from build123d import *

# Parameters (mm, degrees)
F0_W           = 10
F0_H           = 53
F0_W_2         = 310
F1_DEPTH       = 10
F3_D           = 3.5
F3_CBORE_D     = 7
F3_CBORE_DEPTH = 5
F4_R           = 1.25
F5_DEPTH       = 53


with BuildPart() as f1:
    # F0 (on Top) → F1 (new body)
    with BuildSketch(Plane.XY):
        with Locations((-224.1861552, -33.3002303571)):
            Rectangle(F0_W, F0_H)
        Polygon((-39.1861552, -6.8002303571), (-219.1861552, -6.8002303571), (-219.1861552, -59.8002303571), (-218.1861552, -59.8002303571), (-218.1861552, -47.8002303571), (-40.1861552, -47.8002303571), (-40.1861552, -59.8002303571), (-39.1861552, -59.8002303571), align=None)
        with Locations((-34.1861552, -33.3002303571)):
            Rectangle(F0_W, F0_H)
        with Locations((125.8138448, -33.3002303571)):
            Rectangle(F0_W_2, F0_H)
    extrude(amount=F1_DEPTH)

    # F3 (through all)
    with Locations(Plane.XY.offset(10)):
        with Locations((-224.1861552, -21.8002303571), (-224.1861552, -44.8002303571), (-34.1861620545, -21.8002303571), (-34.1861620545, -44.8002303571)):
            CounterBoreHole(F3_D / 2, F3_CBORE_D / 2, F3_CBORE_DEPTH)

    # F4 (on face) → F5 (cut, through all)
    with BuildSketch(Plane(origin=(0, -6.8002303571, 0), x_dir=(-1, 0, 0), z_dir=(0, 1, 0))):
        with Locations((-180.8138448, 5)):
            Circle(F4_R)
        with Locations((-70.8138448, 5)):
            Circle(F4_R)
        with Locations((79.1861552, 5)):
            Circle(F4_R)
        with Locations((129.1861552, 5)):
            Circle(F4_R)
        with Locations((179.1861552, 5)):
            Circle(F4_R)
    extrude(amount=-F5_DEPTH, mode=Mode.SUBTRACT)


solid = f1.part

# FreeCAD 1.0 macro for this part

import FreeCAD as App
import Part
import Sketcher
from FreeCAD import Vector

doc = App.newDocument("Part")
body = doc.addObject("PartDesign::Body", "Body")

# Sketch on XY plane
sketch1 = doc.addObject("Sketcher::SketchObject", "Sketch")
body.addObject(sketch1)
sketch1.AttachmentSupport = (doc.XY_Plane, [""])
sketch1.MapMode = "FlatFace"
sketch1.addGeometry([
    Part.LineSegment(Vector(-229, -7, 0), Vector(-229, -60, 0)),  # 0
    Part.LineSegment(Vector(-229, -60, 0), Vector(-218, -60, 0)),  # 1
    Part.LineSegment(Vector(-218, -60, 0), Vector(-218, -48, 0)),  # 2
    Part.LineSegment(Vector(-218, -48, 0), Vector(-40, -48, 0)),  # 3
    Part.LineSegment(Vector(-40, -48, 0), Vector(-40, -60, 0)),  # 4
    Part.LineSegment(Vector(-40, -60, 0), Vector(281, -60, 0)),  # 5
    Part.LineSegment(Vector(281, -60, 0), Vector(281, -7, 0)),  # 6
    Part.LineSegment(Vector(281, -7, 0), Vector(-229, -7, 0)),  # 7
], False)
sketch1.addConstraint([
    Sketcher.Constraint("Coincident", 0, 2, 1, 1),
    Sketcher.Constraint("Coincident", 1, 2, 2, 1),
    Sketcher.Constraint("Coincident", 2, 2, 3, 1),
    Sketcher.Constraint("Coincident", 3, 2, 4, 1),
    Sketcher.Constraint("Coincident", 4, 2, 5, 1),
    Sketcher.Constraint("Coincident", 5, 2, 6, 1),
    Sketcher.Constraint("Coincident", 6, 2, 7, 1),
    Sketcher.Constraint("Coincident", 7, 2, 0, 1),
    Sketcher.Constraint("Vertical", 0),
    Sketcher.Constraint("Horizontal", 1),
    Sketcher.Constraint("Vertical", 2),
    Sketcher.Constraint("Horizontal", 3),
    Sketcher.Constraint("Vertical", 4),
    Sketcher.Constraint("Horizontal", 5),
    Sketcher.Constraint("Vertical", 6),
    Sketcher.Constraint("Horizontal", 7),
    Sketcher.Constraint("Horizontal", 1, 2, 4, 2),
    Sketcher.Constraint("DistanceX", 1, 1, 1, 2, 11.0),
    Sketcher.Constraint("DistanceX", 3, 1, 3, 2, 178.0),
    Sketcher.Constraint("DistanceX", 5, 1, 5, 2, 321.0),
    Sketcher.Constraint("DistanceY", 0, 2, 0, 1, 53.0),
    Sketcher.Constraint("DistanceY", 2, 1, 2, 2, 12.0),
    Sketcher.Constraint("DistanceY", 0, 2, -1, 1, 59.80023),
    Sketcher.Constraint("DistanceX", 0, 2, -1, 1, 229.186155),
])
pad1 = doc.addObject("PartDesign::Pad", "Pad")
body.addObject(pad1)
pad1.Profile = sketch1
pad1.Length = 10

# Sketch on XY plane
sketch2 = doc.addObject("Sketcher::SketchObject", "Sketch001")
body.addObject(sketch2)
sketch2.AttachmentSupport = (doc.XY_Plane, [""])
sketch2.MapMode = "FlatFace"
sketch2.AttachmentOffset = App.Placement(Vector(0, 0, 10), App.Rotation())
sketch2.addGeometry([
    Part.Circle(Vector(-224.2, -21.8, 0), Vector(0, 0, 1), 1.8),
    Part.Circle(Vector(-224.2, -44.8, 0), Vector(0, 0, 1), 1.8),
    Part.Circle(Vector(-34.2, -21.8, 0), Vector(0, 0, 1), 1.8),
    Part.Circle(Vector(-34.2, -44.8, 0), Vector(0, 0, 1), 1.8),
], False)
sketch2.addConstraint([
    Sketcher.Constraint("Equal", 0, 1),
    Sketcher.Constraint("Equal", 1, 2),
    Sketcher.Constraint("Equal", 2, 3),
    Sketcher.Constraint("Horizontal", 0, 3, 2, 3),
    Sketcher.Constraint("Horizontal", 1, 3, 3, 3),
    Sketcher.Constraint("Vertical", 0, 3, 1, 3),
    Sketcher.Constraint("Vertical", 2, 3, 3, 3),
    Sketcher.Constraint("Diameter", 0, 3.5),
    Sketcher.Constraint("DistanceY", 1, 3, 0, 3, 23.0),
    Sketcher.Constraint("DistanceY", 0, 3, -1, 1, 21.80023),
    Sketcher.Constraint("DistanceX", 0, 3, -1, 1, 224.186155),
    Sketcher.Constraint("DistanceX", 2, 3, -1, 1, 34.186162),
])
doc.recompute()
hole = doc.addObject("PartDesign::Hole", "Hole")
body.addObject(hole)
hole.Profile = sketch2
hole.ThreadType = "None"
hole.Diameter = 3.5
hole.DepthType = "ThroughAll"
hole.HoleCutType = "Counterbore"
hole.HoleCutDiameter = 7
hole.HoleCutDepth = 5

# Sketch on XZ plane
sketch3 = doc.addObject("Sketcher::SketchObject", "Sketch002")
body.addObject(sketch3)
sketch3.AttachmentSupport = (doc.XZ_Plane, [""])
sketch3.MapMode = "FlatFace"
sketch3.AttachmentOffset = App.Placement(Vector(0, 0, 6.80023), App.Rotation())
sketch3.addGeometry([
    Part.Circle(Vector(180.8, 5, 0), Vector(0, 0, 1), 1.2),  # 0
    Part.Circle(Vector(70.8, 5, 0), Vector(0, 0, 1), 1.2),  # 1
    Part.Circle(Vector(-79.2, 5, 0), Vector(0, 0, 1), 1.2),  # 2
    Part.Circle(Vector(-129.2, 5, 0), Vector(0, 0, 1), 1.2),  # 3
    Part.Circle(Vector(-179.2, 5, 0), Vector(0, 0, 1), 1.2),  # 4
], False)
sketch3.addConstraint([
    Sketcher.Constraint("Equal", 0, 1),
    Sketcher.Constraint("Equal", 1, 2),
    Sketcher.Constraint("Equal", 2, 3),
    Sketcher.Constraint("Equal", 3, 4),
    Sketcher.Constraint("Horizontal", 0, 3, 1, 3),
    Sketcher.Constraint("Horizontal", 1, 3, 2, 3),
    Sketcher.Constraint("Horizontal", 2, 3, 3, 3),
    Sketcher.Constraint("Horizontal", 3, 3, 4, 3),
    Sketcher.Constraint("Diameter", 0, 2.5),
    Sketcher.Constraint("DistanceY", -1, 1, 0, 3, 5.0),
    Sketcher.Constraint("DistanceX", 1, 3, 0, 3, 110.0),
    Sketcher.Constraint("DistanceX", 2, 3, 1, 3, 150.0),
    Sketcher.Constraint("DistanceX", 3, 3, 2, 3, 50.0),
    Sketcher.Constraint("DistanceX", 4, 3, 3, 3, 50.0),
    Sketcher.Constraint("DistanceX", -1, 1, 0, 3, 180.813845),
])
pocket1 = doc.addObject("PartDesign::Pocket", "Pocket")
body.addObject(pocket1)
pocket1.Profile = sketch3
pocket1.Type = "ThroughAll"
pocket1.Reversed = True

doc.recompute()
